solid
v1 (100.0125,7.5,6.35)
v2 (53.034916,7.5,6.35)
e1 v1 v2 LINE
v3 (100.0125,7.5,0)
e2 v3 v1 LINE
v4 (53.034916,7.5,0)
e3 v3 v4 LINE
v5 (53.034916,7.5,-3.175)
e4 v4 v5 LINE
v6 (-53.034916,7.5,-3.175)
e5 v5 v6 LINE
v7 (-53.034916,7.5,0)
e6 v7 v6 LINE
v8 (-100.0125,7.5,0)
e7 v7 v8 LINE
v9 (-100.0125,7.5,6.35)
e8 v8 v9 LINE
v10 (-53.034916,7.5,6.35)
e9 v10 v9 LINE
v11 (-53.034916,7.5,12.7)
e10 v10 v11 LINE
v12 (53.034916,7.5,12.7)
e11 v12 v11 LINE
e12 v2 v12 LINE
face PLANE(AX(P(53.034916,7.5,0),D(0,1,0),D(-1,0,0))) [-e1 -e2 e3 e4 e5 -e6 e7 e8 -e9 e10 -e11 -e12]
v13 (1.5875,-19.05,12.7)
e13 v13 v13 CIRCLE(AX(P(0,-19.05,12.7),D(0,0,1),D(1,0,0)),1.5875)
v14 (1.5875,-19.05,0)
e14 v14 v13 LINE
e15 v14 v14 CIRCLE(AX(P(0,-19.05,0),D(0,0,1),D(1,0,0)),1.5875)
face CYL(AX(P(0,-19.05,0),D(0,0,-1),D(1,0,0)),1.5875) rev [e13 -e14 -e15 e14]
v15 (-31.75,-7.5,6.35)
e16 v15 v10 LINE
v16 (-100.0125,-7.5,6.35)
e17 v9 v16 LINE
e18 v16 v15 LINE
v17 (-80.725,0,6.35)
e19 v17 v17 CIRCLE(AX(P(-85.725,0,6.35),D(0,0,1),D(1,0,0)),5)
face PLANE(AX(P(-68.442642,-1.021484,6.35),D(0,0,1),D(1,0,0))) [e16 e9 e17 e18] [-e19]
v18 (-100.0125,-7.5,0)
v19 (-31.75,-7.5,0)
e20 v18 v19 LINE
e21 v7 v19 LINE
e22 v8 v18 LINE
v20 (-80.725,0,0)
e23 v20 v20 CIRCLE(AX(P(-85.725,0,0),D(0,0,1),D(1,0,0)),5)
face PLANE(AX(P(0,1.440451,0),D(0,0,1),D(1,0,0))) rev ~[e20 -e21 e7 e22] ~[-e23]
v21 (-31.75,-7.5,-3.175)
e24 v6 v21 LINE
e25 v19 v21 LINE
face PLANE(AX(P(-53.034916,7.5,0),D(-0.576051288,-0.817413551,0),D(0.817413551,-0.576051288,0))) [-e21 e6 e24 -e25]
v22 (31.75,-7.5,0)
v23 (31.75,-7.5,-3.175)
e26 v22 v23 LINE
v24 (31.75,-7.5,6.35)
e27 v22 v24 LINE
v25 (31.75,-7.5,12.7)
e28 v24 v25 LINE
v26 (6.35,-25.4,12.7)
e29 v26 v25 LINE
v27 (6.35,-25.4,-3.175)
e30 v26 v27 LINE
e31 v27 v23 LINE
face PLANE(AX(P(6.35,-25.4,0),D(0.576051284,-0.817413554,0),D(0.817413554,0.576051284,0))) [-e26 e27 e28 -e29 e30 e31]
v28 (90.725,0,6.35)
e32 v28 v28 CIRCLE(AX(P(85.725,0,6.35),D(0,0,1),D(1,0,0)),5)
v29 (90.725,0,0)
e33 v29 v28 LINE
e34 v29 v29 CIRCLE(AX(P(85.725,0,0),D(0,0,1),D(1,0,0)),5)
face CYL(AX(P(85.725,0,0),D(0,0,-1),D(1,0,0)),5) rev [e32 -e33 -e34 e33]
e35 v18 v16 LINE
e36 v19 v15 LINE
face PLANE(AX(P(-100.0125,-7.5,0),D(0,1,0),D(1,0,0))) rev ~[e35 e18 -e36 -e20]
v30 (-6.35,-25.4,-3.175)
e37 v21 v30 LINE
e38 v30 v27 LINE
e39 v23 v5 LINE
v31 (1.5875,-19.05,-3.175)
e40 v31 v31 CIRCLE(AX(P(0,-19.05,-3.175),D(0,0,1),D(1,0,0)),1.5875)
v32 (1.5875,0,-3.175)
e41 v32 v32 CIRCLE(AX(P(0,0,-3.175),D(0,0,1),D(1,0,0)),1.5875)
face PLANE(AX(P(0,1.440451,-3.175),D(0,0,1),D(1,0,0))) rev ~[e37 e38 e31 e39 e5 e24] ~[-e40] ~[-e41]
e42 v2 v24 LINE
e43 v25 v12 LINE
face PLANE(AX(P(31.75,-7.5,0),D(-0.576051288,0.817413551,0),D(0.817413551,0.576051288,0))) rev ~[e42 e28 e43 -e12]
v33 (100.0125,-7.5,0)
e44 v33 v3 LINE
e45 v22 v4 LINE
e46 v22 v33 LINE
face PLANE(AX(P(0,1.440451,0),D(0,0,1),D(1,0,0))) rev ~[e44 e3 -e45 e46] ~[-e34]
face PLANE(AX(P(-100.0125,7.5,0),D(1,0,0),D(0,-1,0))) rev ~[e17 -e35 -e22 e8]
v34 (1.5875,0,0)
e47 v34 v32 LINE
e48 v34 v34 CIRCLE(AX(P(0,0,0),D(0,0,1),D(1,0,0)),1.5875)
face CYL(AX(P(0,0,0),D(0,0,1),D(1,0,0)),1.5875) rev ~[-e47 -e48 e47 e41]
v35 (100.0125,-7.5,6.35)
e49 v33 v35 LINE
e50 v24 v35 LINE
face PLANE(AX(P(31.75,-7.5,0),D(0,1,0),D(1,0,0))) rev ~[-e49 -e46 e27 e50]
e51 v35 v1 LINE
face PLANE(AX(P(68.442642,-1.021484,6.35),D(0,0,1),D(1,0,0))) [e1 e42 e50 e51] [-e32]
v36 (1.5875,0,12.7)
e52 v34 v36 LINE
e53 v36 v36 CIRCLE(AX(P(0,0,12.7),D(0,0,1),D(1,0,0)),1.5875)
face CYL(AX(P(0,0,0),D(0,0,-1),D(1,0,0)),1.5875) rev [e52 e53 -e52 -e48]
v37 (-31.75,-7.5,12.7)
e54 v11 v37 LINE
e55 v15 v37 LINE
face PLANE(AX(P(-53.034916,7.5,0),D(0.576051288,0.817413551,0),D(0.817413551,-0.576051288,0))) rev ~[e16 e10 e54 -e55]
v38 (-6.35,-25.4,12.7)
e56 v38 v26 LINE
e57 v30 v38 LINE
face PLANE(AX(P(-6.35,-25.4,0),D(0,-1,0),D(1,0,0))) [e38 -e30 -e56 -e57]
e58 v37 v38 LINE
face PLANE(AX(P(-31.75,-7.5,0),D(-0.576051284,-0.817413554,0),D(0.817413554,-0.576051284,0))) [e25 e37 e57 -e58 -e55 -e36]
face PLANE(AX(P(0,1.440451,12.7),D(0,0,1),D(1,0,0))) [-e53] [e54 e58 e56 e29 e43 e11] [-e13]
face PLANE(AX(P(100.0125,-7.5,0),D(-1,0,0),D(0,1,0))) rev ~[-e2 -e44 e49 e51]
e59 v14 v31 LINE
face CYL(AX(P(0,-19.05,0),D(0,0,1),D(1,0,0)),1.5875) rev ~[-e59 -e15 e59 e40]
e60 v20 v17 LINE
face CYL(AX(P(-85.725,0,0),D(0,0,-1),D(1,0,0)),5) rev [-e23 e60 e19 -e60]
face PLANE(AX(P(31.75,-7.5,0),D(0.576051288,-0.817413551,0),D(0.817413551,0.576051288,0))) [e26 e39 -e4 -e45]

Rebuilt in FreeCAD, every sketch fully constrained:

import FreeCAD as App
import Part
import Sketcher
from FreeCAD import Vector
Q = App.Units.Quantity


def add_polygon(sketch, points):
    """Adds a closed chain of lines whose ends are joined by coincident constraints."""
    first, n = sketch.GeometryCount, len(points)
    for a, b in zip(points, points[1:] + points[:1]):
        sketch.addGeometry(Part.LineSegment(App.Vector(*a, 0), App.Vector(*b, 0)), False)
    for i in range(n):
        sketch.addConstraint(Sketcher.Constraint("Coincident", first + i, 2, first + (i + 1) % n, 1))

doc = App.newDocument("Part")
body = doc.addObject("PartDesign::Body", "Body")
body.AllowCompound = True

sketch1 = body.newObject("Sketcher::SketchObject", "Sketch")
sketch1.AttachmentSupport = (doc.getObject("XY_Plane"), [""])
sketch1.MapMode = "FlatFace"
add_polygon(sketch1, [(-53, 8), (-100, 8), (-100, -8), (-32, -8)])
sketch1.addGeometry(Part.Circle(Vector(-86, 0, 0), Vector(0, 0, 1), 5), False)
add_polygon(sketch1, [(100, 8), (53, 8), (32, -8), (100, -8)])
sketch1.addGeometry(Part.Circle(Vector(86, 0, 0), Vector(0, 0, 1), 5), False)
sketch1.addConstraint([
    Sketcher.Constraint("Horizontal", 0),
    Sketcher.Constraint("Vertical", 1),
    Sketcher.Constraint("Horizontal", 2),
    Sketcher.Constraint("Horizontal", 5),
    Sketcher.Constraint("Horizontal", 7),
    Sketcher.Constraint("Vertical", 8),
    Sketcher.Constraint("Equal", 4, 9),
    Sketcher.Constraint("Symmetric", 4, 3, 9, 3, -1, 1),
    Sketcher.Constraint("Symmetric", 0, 2, 7, 2, -1, 1),
    Sketcher.Constraint("Symmetric", 3, 2, 5, 2, -2),
    Sketcher.Constraint("Symmetric", 2, 2, 6, 2, -2),
    Sketcher.Constraint("PointOnObject", 4, 3, -1),
    Sketcher.Constraint("DistanceX", 2, 2, 6, 2, Q("2.5 in")),
    Sketcher.Constraint("Diameter", 4, Q("10 mm")),
    Sketcher.Constraint("DistanceX", 2, 1, 2, 2, Q("2.6875 in")),
    Sketcher.Constraint("DistanceX", 4, 3, 9, 3, Q("6.75 in")),
    Sketcher.Constraint("DistanceY", 1, 2, 1, 1, Q("15 mm")),
    Sketcher.Constraint("Distance", 3, Q("26.039348 mm")),
])
pad1 = body.newObject("PartDesign::Pad", "Pad")
pad1.Profile = sketch1
pad1.Length = Q("0.25 in")

sketch2 = body.newObject("Sketcher::SketchObject", "Sketch001")
sketch2.AttachmentSupport = (doc.getObject("XY_Plane"), [""])
sketch2.MapMode = "FlatFace"
add_polygon(sketch2, [(53, 7.5), (-53, 7.5), (-31.8, -7.5), (-6.3, -25.4), (6.3, -25.4), (31.8, -7.5)])
sketch2.addGeometry(Part.Circle(Vector(0, -19.1, 0), Vector(0, 0, 1), 1.6), False)
sketch2.addGeometry(Part.Circle(Vector(0, 0, 0), Vector(0, 0, 1), 1.6), False)
sketch2.addConstraint([
    Sketcher.Constraint("Horizontal", 0),
    Sketcher.Constraint("Horizontal", 3),
    Sketcher.Constraint("Coincident", 7, 3, -1, 1),
    Sketcher.Constraint("Equal", 6, 7),
    Sketcher.Constraint("Symmetric", 1, 2, 4, 2, -2),
    Sketcher.Constraint("PointOnObject", 6, 3, -2),
    Sketcher.Constraint("Parallel", 1, 2),
    Sketcher.Constraint("Parallel", 4, 5),
    Sketcher.Constraint("Equal", 2, 4),
    Sketcher.Constraint("Diameter", 6, Q("0.125 in")),
    Sketcher.Constraint("DistanceX", 3, 1, 3, 2, Q("0.5 in")),
    Sketcher.Constraint("DistanceY", 2, 2, -1, 1, Q("1 in")),
    Sketcher.Constraint("DistanceX", 1, 2, 2, 2, Q("1 in")),
    Sketcher.Constraint("DistanceY", 6, 3, -1, 1, Q("0.75 in")),
    Sketcher.Constraint("DistanceY", -1, 1, 0, 2, Q("7.5 mm")),
    Sketcher.Constraint("DistanceY", 1, 2, -1, 1, Q("7.5 mm")),
])
pad2 = body.newObject("PartDesign::Pad", "Pad001")
pad2.Profile = sketch2
pad2.Type = "TwoLengths"
pad2.Length = Q("0.5 in")
pad2.Length2 = Q("0.125 in")

doc.recompute()
